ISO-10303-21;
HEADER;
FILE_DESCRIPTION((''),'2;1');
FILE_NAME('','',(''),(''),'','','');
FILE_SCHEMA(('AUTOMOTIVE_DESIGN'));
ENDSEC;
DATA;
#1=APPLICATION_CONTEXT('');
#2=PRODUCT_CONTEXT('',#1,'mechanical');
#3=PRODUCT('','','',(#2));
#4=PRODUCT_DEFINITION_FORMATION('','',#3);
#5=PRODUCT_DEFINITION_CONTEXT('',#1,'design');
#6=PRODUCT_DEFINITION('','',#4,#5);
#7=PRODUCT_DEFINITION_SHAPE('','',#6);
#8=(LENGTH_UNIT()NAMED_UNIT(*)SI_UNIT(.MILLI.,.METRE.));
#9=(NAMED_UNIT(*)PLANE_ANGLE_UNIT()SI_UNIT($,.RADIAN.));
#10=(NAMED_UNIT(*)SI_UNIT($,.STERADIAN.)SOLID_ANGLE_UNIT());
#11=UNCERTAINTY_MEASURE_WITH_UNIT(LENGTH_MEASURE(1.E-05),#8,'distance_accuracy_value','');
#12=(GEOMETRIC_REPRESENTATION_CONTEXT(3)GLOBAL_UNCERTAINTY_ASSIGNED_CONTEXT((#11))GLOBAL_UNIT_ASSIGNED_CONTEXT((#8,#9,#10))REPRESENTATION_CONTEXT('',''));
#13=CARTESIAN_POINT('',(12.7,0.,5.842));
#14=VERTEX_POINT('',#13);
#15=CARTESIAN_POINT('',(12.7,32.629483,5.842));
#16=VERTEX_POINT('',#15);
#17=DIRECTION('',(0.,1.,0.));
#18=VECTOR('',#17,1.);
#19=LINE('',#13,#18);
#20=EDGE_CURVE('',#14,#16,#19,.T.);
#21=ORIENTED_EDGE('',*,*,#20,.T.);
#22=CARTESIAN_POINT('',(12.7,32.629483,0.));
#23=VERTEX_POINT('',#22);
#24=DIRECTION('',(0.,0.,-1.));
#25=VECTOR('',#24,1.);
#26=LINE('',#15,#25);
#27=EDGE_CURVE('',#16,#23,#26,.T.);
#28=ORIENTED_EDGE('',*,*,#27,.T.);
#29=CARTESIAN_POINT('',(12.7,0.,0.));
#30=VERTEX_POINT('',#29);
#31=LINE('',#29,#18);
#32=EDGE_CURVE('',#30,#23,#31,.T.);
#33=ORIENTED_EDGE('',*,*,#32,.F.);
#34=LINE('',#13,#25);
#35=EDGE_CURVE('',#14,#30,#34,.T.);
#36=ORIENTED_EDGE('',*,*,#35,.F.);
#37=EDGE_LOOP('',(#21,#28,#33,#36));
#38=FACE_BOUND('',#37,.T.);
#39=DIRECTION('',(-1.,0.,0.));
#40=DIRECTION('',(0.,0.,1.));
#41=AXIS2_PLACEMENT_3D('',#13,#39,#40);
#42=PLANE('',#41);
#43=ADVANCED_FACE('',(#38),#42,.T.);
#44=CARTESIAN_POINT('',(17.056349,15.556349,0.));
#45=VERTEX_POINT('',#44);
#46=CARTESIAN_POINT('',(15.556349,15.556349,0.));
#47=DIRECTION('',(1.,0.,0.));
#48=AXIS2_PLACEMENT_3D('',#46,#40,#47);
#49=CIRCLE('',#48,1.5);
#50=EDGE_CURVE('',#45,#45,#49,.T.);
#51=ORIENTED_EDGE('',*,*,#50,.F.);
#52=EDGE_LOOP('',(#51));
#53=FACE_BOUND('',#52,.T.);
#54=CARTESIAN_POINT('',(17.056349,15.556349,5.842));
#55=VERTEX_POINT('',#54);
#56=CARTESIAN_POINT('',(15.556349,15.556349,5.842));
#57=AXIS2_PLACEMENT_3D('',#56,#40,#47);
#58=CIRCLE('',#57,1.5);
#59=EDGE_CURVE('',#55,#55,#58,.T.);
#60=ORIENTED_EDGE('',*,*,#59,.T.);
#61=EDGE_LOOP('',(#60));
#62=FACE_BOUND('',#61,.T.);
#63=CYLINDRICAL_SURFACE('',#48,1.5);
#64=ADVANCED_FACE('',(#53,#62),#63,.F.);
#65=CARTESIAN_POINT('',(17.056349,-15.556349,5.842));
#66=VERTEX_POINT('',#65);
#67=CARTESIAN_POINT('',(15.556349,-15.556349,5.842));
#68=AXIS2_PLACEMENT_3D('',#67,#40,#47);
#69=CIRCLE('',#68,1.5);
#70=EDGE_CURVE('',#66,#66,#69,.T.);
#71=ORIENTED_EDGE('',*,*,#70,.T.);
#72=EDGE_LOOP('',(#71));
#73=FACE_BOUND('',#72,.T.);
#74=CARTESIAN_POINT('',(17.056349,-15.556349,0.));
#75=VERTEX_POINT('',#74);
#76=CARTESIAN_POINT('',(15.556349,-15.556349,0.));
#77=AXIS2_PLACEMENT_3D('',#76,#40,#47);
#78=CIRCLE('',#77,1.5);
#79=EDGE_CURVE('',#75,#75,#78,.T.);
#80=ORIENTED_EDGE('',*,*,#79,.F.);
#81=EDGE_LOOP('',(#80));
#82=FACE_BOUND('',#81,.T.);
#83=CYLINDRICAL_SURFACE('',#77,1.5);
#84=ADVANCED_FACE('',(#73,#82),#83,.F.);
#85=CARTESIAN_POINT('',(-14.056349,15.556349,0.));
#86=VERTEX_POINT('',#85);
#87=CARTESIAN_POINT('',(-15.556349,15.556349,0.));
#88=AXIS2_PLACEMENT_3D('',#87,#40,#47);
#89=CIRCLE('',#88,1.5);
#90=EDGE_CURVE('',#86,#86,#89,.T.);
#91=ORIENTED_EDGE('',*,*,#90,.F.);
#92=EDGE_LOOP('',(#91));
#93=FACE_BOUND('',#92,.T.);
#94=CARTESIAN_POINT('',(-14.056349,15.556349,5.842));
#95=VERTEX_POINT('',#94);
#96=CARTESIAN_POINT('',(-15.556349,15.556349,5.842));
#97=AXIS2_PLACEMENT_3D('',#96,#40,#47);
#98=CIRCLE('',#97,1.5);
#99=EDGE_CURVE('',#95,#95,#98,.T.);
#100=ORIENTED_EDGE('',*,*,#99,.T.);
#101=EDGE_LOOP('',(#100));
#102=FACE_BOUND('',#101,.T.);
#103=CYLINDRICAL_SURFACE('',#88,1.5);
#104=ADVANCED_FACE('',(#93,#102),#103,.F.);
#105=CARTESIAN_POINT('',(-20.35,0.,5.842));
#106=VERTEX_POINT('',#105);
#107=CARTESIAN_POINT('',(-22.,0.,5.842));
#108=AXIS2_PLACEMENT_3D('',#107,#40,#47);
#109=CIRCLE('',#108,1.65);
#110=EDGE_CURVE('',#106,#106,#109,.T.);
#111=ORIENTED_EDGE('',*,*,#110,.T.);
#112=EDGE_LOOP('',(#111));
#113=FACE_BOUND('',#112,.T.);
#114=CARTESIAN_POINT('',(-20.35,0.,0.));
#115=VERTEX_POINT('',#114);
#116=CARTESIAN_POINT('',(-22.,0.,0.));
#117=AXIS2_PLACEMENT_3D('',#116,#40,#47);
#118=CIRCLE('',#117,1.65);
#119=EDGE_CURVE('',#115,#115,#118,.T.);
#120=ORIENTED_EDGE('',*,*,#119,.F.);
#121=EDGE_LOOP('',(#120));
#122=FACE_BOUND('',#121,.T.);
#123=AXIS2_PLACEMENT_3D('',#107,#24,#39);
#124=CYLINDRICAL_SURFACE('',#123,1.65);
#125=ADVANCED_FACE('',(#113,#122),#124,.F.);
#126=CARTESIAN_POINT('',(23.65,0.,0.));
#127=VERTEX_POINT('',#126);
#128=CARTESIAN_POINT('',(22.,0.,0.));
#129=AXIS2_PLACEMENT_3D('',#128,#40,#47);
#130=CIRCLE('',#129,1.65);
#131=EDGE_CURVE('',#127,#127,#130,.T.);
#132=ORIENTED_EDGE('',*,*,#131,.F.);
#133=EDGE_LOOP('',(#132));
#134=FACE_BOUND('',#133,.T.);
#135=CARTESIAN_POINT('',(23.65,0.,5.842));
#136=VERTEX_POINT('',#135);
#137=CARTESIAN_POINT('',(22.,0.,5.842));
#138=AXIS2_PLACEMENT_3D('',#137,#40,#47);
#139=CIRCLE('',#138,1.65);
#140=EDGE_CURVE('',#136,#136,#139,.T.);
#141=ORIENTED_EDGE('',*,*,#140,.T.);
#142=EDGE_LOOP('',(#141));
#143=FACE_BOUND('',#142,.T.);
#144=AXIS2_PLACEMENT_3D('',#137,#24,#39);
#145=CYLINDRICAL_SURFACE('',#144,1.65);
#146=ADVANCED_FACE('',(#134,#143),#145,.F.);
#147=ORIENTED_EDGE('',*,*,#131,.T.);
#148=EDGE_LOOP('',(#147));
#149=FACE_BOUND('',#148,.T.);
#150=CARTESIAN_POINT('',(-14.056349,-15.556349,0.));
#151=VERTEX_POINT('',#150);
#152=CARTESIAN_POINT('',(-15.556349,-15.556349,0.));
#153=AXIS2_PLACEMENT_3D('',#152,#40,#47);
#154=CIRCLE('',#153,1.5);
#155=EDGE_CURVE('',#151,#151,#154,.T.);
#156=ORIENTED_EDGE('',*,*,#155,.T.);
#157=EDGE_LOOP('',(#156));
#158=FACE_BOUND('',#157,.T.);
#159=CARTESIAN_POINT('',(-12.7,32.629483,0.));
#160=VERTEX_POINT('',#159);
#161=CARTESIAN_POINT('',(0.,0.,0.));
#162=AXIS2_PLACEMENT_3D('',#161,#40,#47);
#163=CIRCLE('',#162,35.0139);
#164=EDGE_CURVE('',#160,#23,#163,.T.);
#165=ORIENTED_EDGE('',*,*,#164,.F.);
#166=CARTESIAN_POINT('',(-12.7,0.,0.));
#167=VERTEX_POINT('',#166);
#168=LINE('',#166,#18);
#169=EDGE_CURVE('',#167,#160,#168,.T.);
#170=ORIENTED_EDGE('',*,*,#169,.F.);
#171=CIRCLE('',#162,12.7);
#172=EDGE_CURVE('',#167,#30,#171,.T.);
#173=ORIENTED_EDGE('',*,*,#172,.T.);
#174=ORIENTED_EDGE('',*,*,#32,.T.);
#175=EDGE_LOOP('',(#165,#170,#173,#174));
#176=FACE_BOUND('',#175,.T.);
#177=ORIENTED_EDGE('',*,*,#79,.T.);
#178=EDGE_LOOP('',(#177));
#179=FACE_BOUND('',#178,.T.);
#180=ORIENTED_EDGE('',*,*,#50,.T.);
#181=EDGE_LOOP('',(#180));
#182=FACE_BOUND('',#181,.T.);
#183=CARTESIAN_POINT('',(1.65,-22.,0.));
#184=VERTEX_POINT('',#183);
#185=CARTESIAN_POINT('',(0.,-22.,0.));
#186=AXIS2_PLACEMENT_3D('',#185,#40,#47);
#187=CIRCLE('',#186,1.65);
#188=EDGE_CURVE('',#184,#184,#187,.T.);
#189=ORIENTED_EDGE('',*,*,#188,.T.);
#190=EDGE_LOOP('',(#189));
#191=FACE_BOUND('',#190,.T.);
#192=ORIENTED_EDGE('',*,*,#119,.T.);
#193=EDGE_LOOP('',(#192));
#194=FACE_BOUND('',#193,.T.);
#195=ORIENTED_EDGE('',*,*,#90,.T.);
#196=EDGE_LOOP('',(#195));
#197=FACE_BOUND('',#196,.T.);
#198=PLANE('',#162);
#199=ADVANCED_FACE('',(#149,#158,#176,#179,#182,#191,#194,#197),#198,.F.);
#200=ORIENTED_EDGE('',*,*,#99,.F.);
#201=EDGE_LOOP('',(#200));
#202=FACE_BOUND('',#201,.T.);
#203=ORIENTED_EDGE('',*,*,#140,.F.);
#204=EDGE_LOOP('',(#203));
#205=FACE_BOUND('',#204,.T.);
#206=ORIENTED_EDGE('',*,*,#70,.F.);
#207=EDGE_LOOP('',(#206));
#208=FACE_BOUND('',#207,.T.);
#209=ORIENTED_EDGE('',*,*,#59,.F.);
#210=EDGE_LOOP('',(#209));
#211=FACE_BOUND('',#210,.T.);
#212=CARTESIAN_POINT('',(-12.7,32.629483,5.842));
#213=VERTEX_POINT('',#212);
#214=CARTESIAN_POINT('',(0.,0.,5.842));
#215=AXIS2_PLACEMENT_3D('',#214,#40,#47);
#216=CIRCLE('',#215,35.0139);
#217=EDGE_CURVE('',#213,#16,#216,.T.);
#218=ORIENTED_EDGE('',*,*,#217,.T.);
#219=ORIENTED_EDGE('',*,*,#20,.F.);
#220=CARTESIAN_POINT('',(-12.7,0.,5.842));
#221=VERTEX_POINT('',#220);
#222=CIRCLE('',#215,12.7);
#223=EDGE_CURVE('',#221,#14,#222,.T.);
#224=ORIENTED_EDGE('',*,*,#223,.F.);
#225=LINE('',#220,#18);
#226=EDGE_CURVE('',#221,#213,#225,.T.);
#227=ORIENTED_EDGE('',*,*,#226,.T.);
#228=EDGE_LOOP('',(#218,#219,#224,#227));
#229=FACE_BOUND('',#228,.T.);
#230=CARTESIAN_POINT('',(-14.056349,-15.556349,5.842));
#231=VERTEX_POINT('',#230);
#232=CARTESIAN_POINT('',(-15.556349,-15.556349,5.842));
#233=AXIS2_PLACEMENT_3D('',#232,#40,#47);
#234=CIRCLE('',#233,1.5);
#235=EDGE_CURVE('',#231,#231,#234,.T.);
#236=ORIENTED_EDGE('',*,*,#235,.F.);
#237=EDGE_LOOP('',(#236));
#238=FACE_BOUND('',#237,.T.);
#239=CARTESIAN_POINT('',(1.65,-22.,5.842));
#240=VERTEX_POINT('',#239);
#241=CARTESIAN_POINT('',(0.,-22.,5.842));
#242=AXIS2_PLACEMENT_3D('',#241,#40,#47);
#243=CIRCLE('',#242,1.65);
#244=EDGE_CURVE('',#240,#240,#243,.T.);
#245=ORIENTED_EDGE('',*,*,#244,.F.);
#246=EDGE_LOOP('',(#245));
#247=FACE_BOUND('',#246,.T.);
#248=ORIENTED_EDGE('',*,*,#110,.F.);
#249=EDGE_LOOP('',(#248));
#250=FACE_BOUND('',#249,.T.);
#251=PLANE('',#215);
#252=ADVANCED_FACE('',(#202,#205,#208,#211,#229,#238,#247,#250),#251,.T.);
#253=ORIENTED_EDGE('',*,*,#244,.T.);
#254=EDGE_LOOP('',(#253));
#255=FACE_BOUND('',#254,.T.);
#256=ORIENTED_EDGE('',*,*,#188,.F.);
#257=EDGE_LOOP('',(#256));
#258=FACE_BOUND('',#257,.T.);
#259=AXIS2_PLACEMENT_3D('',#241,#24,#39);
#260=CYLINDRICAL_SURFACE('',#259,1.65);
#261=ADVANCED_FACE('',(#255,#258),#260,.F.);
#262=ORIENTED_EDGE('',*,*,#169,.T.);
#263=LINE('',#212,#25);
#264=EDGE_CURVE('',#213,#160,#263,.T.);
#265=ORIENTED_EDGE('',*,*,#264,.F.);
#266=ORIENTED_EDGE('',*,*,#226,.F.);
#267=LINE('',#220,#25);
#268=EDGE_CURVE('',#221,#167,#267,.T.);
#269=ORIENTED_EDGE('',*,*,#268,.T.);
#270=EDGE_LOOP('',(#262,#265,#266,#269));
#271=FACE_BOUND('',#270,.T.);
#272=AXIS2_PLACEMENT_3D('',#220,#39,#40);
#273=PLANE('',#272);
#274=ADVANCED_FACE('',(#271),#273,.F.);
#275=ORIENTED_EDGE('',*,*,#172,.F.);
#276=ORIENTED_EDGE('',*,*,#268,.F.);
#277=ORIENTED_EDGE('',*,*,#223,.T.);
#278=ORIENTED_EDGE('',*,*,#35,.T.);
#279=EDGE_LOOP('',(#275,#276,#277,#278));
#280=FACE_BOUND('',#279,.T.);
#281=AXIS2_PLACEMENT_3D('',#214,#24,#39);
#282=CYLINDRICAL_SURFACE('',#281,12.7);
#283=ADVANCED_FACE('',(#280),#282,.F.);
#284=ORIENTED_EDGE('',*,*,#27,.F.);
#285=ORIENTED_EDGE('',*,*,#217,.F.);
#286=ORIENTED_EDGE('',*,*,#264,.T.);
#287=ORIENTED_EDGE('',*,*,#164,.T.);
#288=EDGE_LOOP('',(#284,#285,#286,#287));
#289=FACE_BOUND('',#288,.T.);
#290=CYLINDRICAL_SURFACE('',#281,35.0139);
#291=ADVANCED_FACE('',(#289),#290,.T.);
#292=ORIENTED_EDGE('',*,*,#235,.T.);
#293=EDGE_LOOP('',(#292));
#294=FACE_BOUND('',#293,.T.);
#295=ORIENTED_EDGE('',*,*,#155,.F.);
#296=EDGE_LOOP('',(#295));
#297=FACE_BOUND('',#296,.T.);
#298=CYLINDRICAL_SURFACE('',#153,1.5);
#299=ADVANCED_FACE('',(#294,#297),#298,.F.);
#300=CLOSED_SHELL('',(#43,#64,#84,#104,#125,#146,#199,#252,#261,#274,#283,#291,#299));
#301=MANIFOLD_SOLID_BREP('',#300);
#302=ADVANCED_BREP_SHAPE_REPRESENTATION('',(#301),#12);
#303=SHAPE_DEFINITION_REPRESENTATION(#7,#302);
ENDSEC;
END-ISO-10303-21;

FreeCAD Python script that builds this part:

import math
import FreeCAD as App
import Part
import Sketcher

V = App.Vector
Q = App.Units.Quantity

doc = App.newDocument("Part")
body = doc.addObject("PartDesign::Body", "Body")

# Sketch on XY plane
sketch1 = body.newObject("Sketcher::SketchObject", "Sketch")
sketch1.AttachmentSupport = (doc.getObject("XY_Plane"), [""])
sketch1.MapMode = "FlatFace"
sketch1.addGeometry(Part.LineSegment(V(-12.7, 0, 0), V(-12.7, 32.629483, 0)), False)
sketch1.addGeometry(Part.ArcOfCircle(Part.Circle(V(0, 0, 0), V(0, 0, 1), 35.0139), math.radians(111.26691), math.radians(428.73309)), False)
sketch1.addGeometry(Part.LineSegment(V(12.7, 32.629483, 0), V(12.7, 0, 0)), False)
sketch1.addGeometry(Part.ArcOfCircle(Part.Circle(V(0, 0, 0), V(0, 0, 1), 12.7), math.radians(180), math.radians(360)), False)
sketch1.addGeometry(Part.Circle(V(0, -22, 0), V(0, 0, 1), 1.65), False)
sketch1.addGeometry(Part.Circle(V(-22, 0, 0), V(0, 0, 1), 1.65), False)
sketch1.addGeometry(Part.Circle(V(22, 0, 0), V(0, 0, 1), 1.65), False)
sketch1.addConstraint(Sketcher.Constraint("Coincident", 0, 2, 1, 1))
sketch1.addConstraint(Sketcher.Constraint("Coincident", 1, 2, 2, 1))
sketch1.addConstraint(Sketcher.Constraint("Tangent", 2, 2, 3, 2))
sketch1.addConstraint(Sketcher.Constraint("Tangent", 3, 1, 0, 1))
sketch1.addConstraint(Sketcher.Constraint("Vertical", 0))
sketch1.addConstraint(Sketcher.Constraint("Vertical", 2))
sketch1.addConstraint(Sketcher.Constraint("Coincident", 1, 3, -1, 1))
sketch1.addConstraint(Sketcher.Constraint("Coincident", 3, 3, -1, 1))
sketch1.addConstraint(Sketcher.Constraint("Equal", 4, 5))
sketch1.addConstraint(Sketcher.Constraint("Equal", 5, 6))
sketch1.addConstraint(Sketcher.Constraint("Symmetric", 5, 3, 6, 3, -1, 1))
sketch1.addConstraint(Sketcher.Constraint("PointOnObject", 4, 3, -2))
sketch1.addConstraint(Sketcher.Constraint("PointOnObject", 5, 3, -1))
sketch1.addConstraint(Sketcher.Constraint("Radius", 3, Q("0.5 in")))
sketch1.addConstraint(Sketcher.Constraint("Radius", 1, Q("1.3785 in")))
sketch1.addConstraint(Sketcher.Constraint("Diameter", 4, 3.3))
sketch1.addConstraint(Sketcher.Constraint("DistanceY", 4, 3, -1, 1, 22.0))
sketch1.addConstraint(Sketcher.Constraint("DistanceX", 5, 3, -1, 1, 22.0))
pad1 = body.newObject("PartDesign::Pad", "Pad")
pad1.Profile = sketch1
pad1.Length = Q("0.23 in")

# Sketch on XY plane
sketch2 = body.newObject("Sketcher::SketchObject", "Sketch001")
sketch2.AttachmentSupport = (doc.getObject("XY_Plane"), [""])
sketch2.MapMode = "FlatFace"
sketch2.AttachmentOffset = App.Placement(V(0, 0, 0.23 * 25.4), App.Rotation())
sketch2.addGeometry(Part.Circle(V(-15.556349, -15.556349, 0), V(0, 0, 1), 1.5), False)
sketch2.addGeometry(Part.Circle(V(-15.556349, 15.556349, 0), V(0, 0, 1), 1.5), False)
sketch2.addGeometry(Part.Circle(V(15.556349, 15.556349, 0), V(0, 0, 1), 1.5), False)
sketch2.addGeometry(Part.Circle(V(15.556349, -15.556349, 0), V(0, 0, 1), 1.5), False)
sketch2.addConstraint(Sketcher.Constraint("Equal", 0, 1))
sketch2.addConstraint(Sketcher.Constraint("Equal", 1, 2))
sketch2.addConstraint(Sketcher.Constraint("Equal", 2, 3))
sketch2.addConstraint(Sketcher.Constraint("Symmetric", 0, 3, 2, 3, -1, 1))
sketch2.addConstraint(Sketcher.Constraint("Symmetric", 1, 3, 3, 3, -1, 1))
sketch2.addConstraint(Sketcher.Constraint("Symmetric", 1, 3, 2, 3, -2))
sketch2.addConstraint(Sketcher.Constraint("Diameter", 0, 3.0))
sketch2.addConstraint(Sketcher.Constraint("DistanceY", 0, 3, 1, 3, 31.112698))
sketch2.addConstraint(Sketcher.Constraint("DistanceX", 1, 3, 2, 3, 31.112698))
pocket1 = body.newObject("PartDesign::Pocket", "Pocket")
pocket1.Profile = sketch2
pocket1.Type = "ThroughAll"

doc.recompute()
